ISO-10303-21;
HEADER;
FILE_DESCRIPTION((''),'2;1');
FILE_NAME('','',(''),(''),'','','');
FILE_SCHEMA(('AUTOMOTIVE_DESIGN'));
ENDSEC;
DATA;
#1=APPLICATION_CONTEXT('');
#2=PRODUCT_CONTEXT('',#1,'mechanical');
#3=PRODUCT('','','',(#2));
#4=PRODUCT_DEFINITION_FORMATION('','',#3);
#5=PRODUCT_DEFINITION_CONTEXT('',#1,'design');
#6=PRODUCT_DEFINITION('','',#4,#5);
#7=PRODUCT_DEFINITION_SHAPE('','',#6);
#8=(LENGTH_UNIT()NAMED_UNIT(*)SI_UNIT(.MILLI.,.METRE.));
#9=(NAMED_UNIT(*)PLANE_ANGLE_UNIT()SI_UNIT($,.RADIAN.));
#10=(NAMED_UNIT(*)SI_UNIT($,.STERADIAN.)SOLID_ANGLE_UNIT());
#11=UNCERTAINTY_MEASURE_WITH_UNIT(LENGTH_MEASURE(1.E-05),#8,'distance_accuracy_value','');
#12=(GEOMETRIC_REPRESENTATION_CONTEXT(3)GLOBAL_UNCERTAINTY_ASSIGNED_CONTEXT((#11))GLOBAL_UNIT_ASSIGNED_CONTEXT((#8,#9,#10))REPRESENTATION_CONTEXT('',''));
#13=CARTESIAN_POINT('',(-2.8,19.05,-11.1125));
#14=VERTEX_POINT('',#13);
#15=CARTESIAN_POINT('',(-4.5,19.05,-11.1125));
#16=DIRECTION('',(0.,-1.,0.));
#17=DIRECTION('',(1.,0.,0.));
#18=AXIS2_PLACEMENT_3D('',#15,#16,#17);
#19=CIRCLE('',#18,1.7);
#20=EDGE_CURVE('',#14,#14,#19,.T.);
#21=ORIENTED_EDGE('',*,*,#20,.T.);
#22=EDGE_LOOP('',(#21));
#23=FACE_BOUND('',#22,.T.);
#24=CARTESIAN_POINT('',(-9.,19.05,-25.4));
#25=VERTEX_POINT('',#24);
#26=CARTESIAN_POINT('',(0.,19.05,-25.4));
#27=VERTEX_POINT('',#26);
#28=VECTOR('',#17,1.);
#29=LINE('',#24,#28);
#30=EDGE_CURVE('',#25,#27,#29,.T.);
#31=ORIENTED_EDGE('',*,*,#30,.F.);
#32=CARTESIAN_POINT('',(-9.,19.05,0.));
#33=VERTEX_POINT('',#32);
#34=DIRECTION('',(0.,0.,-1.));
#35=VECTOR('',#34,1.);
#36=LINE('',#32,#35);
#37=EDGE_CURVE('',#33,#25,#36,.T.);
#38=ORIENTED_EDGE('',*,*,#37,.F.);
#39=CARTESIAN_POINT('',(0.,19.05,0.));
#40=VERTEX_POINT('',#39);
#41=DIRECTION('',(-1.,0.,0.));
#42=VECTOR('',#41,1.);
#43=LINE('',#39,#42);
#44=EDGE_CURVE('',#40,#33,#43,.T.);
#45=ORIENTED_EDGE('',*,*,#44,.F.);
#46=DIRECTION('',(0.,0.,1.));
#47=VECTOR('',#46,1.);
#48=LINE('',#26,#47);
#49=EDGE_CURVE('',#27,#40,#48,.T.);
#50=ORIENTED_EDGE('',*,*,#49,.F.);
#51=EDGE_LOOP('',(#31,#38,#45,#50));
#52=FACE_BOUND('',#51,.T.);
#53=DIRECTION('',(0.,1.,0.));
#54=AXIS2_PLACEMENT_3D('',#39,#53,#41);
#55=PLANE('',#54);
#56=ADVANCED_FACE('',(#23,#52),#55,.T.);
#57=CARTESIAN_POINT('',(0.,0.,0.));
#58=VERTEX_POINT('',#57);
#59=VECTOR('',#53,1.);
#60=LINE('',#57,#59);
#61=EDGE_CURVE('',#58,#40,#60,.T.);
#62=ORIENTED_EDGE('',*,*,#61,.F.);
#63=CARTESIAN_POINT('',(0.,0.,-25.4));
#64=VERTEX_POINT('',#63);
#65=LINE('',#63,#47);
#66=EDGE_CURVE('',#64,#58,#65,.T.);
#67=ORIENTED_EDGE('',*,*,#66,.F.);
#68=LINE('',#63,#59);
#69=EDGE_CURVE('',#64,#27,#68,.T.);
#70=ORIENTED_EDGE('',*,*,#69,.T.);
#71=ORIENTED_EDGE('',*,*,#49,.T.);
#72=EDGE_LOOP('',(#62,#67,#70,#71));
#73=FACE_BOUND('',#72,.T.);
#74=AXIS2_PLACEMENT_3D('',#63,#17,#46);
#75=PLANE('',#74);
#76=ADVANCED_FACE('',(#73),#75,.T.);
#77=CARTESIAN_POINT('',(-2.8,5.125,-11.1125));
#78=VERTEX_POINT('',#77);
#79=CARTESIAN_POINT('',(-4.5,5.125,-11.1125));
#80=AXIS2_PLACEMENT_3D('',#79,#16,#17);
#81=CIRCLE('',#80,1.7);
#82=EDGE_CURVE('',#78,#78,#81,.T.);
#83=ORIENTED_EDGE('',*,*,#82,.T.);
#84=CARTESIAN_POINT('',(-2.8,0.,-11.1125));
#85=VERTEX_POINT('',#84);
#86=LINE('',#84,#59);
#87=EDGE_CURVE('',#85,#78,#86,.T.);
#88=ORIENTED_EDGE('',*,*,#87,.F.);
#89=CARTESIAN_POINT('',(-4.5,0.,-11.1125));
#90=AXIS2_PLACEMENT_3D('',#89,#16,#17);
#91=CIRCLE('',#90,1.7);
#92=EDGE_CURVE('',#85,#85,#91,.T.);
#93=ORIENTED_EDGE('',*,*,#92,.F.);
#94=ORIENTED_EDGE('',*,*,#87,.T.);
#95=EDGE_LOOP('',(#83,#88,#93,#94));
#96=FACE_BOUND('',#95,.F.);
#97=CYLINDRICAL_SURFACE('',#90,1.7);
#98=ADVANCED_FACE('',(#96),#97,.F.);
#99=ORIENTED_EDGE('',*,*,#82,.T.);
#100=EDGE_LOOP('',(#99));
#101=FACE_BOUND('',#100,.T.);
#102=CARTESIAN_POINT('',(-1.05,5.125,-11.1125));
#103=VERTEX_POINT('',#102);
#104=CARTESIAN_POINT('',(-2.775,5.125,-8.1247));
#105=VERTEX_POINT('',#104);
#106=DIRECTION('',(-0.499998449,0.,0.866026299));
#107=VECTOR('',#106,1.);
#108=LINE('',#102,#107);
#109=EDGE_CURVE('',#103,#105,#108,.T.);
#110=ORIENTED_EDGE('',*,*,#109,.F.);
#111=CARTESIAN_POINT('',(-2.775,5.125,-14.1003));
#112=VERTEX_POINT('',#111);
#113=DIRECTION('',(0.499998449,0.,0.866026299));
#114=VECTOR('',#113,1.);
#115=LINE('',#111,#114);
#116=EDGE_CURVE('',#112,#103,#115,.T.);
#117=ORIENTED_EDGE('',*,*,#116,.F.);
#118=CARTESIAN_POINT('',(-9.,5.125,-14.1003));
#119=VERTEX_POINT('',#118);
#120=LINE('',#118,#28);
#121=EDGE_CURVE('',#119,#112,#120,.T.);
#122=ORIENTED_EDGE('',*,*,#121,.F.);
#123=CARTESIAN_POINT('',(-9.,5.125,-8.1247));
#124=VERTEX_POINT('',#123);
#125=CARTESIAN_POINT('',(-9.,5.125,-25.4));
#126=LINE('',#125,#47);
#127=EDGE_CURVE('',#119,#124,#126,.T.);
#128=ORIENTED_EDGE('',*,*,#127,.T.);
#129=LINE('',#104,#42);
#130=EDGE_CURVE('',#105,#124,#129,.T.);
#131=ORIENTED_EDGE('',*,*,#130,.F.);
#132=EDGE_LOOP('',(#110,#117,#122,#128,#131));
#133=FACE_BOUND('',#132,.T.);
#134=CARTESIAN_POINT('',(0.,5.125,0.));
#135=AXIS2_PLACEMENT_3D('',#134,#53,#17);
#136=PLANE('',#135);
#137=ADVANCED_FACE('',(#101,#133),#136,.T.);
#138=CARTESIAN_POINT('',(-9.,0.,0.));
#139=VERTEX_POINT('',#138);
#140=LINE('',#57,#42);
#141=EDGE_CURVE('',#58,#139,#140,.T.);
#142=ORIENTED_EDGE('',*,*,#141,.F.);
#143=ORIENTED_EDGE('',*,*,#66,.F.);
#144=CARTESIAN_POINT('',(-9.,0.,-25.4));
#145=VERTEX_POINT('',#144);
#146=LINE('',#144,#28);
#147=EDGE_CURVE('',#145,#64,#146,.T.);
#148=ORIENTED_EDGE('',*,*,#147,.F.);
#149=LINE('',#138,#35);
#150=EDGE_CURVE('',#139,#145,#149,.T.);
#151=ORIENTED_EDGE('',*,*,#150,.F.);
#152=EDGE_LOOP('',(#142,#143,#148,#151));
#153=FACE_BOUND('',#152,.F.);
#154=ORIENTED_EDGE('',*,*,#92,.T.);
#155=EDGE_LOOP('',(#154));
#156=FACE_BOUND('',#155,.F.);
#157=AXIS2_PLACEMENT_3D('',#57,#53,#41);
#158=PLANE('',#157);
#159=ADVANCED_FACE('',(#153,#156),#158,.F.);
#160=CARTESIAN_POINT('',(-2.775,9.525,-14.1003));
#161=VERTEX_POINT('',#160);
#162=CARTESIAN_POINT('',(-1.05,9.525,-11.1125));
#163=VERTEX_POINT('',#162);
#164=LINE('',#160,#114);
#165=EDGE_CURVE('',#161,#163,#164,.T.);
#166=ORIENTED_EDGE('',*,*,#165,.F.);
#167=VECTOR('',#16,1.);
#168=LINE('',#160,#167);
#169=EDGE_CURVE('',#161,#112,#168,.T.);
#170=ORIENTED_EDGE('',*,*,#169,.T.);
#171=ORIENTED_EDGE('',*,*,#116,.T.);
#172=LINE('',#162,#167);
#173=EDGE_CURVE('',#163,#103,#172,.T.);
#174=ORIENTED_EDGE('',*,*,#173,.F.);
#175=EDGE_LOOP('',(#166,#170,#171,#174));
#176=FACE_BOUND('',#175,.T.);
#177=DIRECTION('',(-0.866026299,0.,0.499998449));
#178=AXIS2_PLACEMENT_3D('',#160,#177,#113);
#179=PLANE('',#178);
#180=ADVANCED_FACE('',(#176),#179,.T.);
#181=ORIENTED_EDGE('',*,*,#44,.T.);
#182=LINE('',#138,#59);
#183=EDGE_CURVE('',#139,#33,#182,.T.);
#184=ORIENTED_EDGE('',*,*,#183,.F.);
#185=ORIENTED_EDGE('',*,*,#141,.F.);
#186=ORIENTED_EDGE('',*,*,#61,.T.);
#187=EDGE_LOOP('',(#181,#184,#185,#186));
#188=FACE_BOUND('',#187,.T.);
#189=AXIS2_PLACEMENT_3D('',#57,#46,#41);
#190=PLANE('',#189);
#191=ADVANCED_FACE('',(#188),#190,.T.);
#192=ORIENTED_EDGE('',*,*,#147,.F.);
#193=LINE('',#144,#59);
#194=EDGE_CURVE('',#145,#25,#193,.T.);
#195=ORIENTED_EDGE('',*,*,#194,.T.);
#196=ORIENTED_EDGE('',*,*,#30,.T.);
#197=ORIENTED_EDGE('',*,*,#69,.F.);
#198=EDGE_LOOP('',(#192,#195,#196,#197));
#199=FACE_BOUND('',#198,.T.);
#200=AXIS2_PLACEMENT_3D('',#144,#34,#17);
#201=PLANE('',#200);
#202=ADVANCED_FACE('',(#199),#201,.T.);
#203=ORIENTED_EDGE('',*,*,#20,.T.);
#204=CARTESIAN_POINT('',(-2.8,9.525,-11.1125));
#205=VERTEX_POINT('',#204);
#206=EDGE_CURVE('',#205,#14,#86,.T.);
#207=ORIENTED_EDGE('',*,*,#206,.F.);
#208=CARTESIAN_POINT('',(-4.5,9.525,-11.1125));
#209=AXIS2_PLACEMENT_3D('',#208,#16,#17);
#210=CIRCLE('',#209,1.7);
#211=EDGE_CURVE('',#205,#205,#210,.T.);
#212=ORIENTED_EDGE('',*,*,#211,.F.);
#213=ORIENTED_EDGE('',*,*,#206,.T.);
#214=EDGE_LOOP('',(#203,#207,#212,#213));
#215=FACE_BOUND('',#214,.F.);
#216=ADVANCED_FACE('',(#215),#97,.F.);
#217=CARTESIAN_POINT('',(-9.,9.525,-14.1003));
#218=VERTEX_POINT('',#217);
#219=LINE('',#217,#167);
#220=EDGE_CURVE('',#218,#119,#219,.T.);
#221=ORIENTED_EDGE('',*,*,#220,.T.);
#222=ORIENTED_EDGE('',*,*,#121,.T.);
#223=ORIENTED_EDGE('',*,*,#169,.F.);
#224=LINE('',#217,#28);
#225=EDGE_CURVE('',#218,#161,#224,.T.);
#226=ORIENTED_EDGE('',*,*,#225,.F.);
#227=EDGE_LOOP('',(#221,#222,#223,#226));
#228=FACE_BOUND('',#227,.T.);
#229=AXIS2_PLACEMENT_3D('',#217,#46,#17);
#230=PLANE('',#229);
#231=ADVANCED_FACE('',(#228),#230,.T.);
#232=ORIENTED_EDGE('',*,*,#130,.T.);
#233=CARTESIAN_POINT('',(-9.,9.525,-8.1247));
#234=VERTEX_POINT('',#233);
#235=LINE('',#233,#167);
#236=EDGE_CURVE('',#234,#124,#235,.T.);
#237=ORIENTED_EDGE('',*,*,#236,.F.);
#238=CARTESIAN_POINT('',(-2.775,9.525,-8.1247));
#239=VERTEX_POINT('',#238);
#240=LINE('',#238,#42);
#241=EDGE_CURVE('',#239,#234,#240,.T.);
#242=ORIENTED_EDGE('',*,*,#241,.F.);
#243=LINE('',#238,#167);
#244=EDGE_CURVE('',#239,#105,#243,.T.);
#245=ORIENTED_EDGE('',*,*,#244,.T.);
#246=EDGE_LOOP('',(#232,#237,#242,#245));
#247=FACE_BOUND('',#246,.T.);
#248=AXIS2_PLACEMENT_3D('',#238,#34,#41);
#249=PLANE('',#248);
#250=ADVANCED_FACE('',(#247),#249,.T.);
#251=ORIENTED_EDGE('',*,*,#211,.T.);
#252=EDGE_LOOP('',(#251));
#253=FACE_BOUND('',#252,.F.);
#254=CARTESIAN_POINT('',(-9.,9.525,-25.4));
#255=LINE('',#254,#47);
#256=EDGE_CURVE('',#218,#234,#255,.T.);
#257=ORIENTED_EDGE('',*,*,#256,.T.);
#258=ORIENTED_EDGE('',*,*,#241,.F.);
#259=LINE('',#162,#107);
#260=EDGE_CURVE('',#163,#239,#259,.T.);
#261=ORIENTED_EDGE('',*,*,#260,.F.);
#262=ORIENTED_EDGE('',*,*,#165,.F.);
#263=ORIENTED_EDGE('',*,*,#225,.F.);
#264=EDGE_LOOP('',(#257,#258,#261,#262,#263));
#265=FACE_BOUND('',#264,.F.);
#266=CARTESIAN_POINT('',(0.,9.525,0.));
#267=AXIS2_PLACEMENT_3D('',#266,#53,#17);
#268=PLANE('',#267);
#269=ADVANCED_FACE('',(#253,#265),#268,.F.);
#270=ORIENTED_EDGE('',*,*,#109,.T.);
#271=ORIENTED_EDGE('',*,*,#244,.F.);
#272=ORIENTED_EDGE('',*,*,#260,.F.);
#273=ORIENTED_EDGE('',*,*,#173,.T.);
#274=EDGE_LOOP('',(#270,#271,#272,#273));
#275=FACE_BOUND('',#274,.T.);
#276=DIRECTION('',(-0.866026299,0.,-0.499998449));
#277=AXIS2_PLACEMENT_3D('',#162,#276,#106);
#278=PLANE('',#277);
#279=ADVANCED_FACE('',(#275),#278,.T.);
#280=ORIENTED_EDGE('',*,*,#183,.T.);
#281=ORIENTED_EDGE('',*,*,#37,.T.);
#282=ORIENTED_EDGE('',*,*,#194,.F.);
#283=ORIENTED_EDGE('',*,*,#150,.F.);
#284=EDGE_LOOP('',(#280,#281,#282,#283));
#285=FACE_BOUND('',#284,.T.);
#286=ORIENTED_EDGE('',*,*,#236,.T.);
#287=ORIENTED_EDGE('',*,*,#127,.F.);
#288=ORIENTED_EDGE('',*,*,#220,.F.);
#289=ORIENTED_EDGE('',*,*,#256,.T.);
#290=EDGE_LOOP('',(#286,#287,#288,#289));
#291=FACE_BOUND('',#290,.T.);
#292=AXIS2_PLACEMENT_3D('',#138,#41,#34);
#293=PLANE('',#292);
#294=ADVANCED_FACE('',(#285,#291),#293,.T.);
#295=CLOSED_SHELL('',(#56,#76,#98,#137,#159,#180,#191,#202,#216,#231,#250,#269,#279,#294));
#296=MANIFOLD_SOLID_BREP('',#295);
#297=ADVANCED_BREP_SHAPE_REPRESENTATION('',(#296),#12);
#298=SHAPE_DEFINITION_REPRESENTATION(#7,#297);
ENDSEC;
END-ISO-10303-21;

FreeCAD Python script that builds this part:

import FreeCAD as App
import Part
import Sketcher

V = App.Vector
Q = App.Units.Quantity

doc = App.newDocument("Part")
body = doc.addObject("PartDesign::Body", "Body")

# Sketch on XZ plane
sketch1 = body.newObject("Sketcher::SketchObject", "Sketch")
sketch1.AttachmentSupport = (doc.getObject("XZ_Plane"), [""])
sketch1.MapMode = "FlatFace"
sketch1.addGeometry([
    Part.LineSegment(V(-9, 0, 0), V(0, 0, 0)),
    Part.LineSegment(V(0, 0, 0), V(0, -25.4, 0)),
    Part.LineSegment(V(0, -25.4, 0), V(-9, -25.4, 0)),
    Part.LineSegment(V(-9, -25.4, 0), V(-9, 0, 0)),
], False)
sketch1.addConstraint([
    Sketcher.Constraint("Coincident", 0, 2, 1, 1),
    Sketcher.Constraint("Coincident", 1, 2, 2, 1),
    Sketcher.Constraint("Coincident", 2, 2, 3, 1),
    Sketcher.Constraint("Coincident", 3, 2, 0, 1),
    Sketcher.Constraint("Horizontal", 0),
    Sketcher.Constraint("Vertical", 1),
    Sketcher.Constraint("Horizontal", 2),
    Sketcher.Constraint("Vertical", 3),
    Sketcher.Constraint("Coincident", 0, 2, -1, 1),
    Sketcher.Constraint("DistanceX", 0, 1, 0, 2, 9.0),
    Sketcher.Constraint("DistanceY", 1, 2, 1, 1, 25.4),
])
pad1 = body.newObject("PartDesign::Pad", "Pad")
pad1.Profile = sketch1
pad1.Length = 19.05
pad1.Reversed = True

# Sketch on XZ plane
sketch2 = body.newObject("Sketcher::SketchObject", "Sketch001")
sketch2.AttachmentSupport = (doc.getObject("XZ_Plane"), [""])
sketch2.MapMode = "FlatFace"
sketch2.AttachmentOffset = App.Placement(V(0, 0, -9.525), App.Rotation())
sketch2.addGeometry([
    Part.LineSegment(V(-2.775, -14.1003, 0), V(-9, -14.1003, 0)),  # 0
    Part.LineSegment(V(-9, -14.1003, 0), V(-9, -8.1247, 0)),  # 1
    Part.LineSegment(V(-9, -8.1247, 0), V(-2.775, -8.1247, 0)),  # 2
    Part.LineSegment(V(-2.775, -8.1247, 0), V(-1.05, -11.1125, 0)),  # 3
    Part.LineSegment(V(-1.05, -11.1125, 0), V(-2.775, -14.1003, 0)),  # 4
], False)
sketch2.addConstraint([
    Sketcher.Constraint("Coincident", 0, 2, 1, 1),
    Sketcher.Constraint("Coincident", 1, 2, 2, 1),
    Sketcher.Constraint("Coincident", 2, 2, 3, 1),
    Sketcher.Constraint("Coincident", 3, 2, 4, 1),
    Sketcher.Constraint("Coincident", 4, 2, 0, 1),
    Sketcher.Constraint("Horizontal", 0),
    Sketcher.Constraint("Vertical", 1),
    Sketcher.Constraint("Horizontal", 2),
    Sketcher.Constraint("Vertical", 2, 2, 4, 2),
    Sketcher.Constraint("Equal", 3, 4),
    Sketcher.Constraint("Angle", 3, Q("-60 deg")),
    Sketcher.Constraint("DistanceX", 0, 2, -1, 1, 9.0),
    Sketcher.Constraint("Distance", 3, 3.45),
    Sketcher.Constraint("DistanceX", 0, 2, 0, 1, 6.225),
    Sketcher.Constraint("DistanceY", 0, 2, -1, 1, 14.1003),
])
pocket1 = body.newObject("PartDesign::Pocket", "Pocket")
pocket1.Profile = sketch2
pocket1.Length = 4.4
pocket1.Reversed = True

# Sketch on XZ plane
sketch3 = body.newObject("Sketcher::SketchObject", "Sketch002")
sketch3.AttachmentSupport = (doc.getObject("XZ_Plane"), [""])
sketch3.MapMode = "FlatFace"
sketch3.addGeometry(Part.Circle(V(-4.5, -11.1125, 0), V(0, 0, 1), 1.7), False)
sketch3.addConstraint([
    Sketcher.Constraint("Diameter", 0, 3.4),
    Sketcher.Constraint("DistanceX", 0, 3, -1, 1, 4.5),
    Sketcher.Constraint("DistanceY", 0, 3, -1, 1, 11.1125),
])
pocket2 = body.newObject("PartDesign::Pocket", "Pocket001")
pocket2.Profile = sketch3
pocket2.Type = "ThroughAll"

doc.recompute()
